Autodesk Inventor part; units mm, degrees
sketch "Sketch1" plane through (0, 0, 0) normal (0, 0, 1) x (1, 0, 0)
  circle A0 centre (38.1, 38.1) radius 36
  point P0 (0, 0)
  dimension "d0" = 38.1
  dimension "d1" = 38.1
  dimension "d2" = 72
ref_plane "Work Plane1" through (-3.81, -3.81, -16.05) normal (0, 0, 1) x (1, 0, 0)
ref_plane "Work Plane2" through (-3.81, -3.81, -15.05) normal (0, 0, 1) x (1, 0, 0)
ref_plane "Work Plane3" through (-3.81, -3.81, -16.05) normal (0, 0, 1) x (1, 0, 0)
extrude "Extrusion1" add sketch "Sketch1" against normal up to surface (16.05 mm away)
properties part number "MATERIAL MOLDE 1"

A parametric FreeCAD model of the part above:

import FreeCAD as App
import Part
import Sketcher
Q = App.Units.Quantity

doc = App.newDocument("Part")
body = doc.addObject("PartDesign::Body", "Body")

sketch1 = doc.addObject("Sketcher::SketchObject", "Sketch")
body.addObject(sketch1)
sketch1.AttachmentSupport = (doc.XY_Plane, [""])
sketch1.MapMode = "FlatFace"
sketch1.addGeometry(Part.Circle(App.Vector(38, 38, 0), App.Vector(0, 0, 1), 36), False)
sketch1.addConstraint([
    Sketcher.Constraint("Diameter", 0, Q("72 mm")),
    Sketcher.Constraint("DistanceX", -1, 1, 0, 3, Q("38.1 mm")),
    Sketcher.Constraint("DistanceY", -1, 1, 0, 3, Q("38.1 mm")),
])
pad1 = doc.addObject("PartDesign::Pad", "Pad")
body.addObject(pad1)
pad1.Profile = sketch1
pad1.Length = 16.05
pad1.Reversed = True

doc.recompute()
